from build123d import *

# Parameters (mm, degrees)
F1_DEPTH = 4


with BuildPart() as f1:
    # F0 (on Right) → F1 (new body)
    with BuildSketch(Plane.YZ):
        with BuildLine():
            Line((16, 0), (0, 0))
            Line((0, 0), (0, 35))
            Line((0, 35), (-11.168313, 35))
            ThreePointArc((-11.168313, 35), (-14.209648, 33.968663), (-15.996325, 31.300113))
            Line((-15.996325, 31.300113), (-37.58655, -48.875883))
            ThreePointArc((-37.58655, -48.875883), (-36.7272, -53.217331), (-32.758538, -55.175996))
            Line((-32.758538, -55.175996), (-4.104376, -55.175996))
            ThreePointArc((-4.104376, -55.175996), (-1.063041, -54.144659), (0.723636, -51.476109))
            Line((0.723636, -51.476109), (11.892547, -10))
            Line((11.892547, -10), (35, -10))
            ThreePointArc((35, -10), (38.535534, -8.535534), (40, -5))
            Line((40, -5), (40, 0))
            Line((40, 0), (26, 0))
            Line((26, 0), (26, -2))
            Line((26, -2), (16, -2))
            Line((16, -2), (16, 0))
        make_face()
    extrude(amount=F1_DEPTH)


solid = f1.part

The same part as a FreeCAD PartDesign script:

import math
import FreeCAD as App
import Part
import Sketcher
from FreeCAD import Vector

doc = App.newDocument("Part")
body = doc.addObject("PartDesign::Body", "Body")

# Sketch on YZ plane
sketch1 = doc.addObject("Sketcher::SketchObject", "Sketch")
body.addObject(sketch1)
sketch1.AttachmentSupport = (doc.YZ_Plane, [""])
sketch1.MapMode = "FlatFace"
sketch1.addGeometry(Part.LineSegment(Vector(16, 0, 0), Vector(0, 0, 0)), False)
sketch1.addGeometry(Part.LineSegment(Vector(0, 0, 0), Vector(0, 35, 0)), False)
sketch1.addGeometry(Part.LineSegment(Vector(0, 35, 0), Vector(-11.168313, 35, 0)), False)
sketch1.addGeometry(Part.ArcOfCircle(Part.Circle(Vector(-11.168315, 30.000003, 0), Vector(0, 0, 1), 4.999997), math.radians(89.999979), math.radians(164.928626)), False)
sketch1.addGeometry(Part.LineSegment(Vector(-15.996325, 31.300113, 0), Vector(-37.58655, -48.875883, 0)), False)
sketch1.addGeometry(Part.ArcOfCircle(Part.Circle(Vector(-32.758538, -50.175996, 0), Vector(0, 0, 1), 5), math.radians(164.928593), math.radians(269.999997)), False)
sketch1.addGeometry(Part.LineSegment(Vector(-32.758538, -55.175996, 0), Vector(-4.104376, -55.175996, 0)), False)
sketch1.addGeometry(Part.ArcOfCircle(Part.Circle(Vector(-4.104374, -50.175999, 0), Vector(0, 0, 1), 4.999997), math.radians(-90.000021), math.radians(-15.071374)), False)
sketch1.addGeometry(Part.LineSegment(Vector(0.723636, -51.476109, 0), Vector(11.892547, -10, 0)), False)
sketch1.addGeometry(Part.LineSegment(Vector(11.892547, -10, 0), Vector(35, -10, 0)), False)
sketch1.addGeometry(Part.ArcOfCircle(Part.Circle(Vector(35, -5, 0), Vector(0, 0, 1), 5), math.radians(-90.000004), math.radians(0.000004)), False)
sketch1.addGeometry(Part.LineSegment(Vector(40, -5, 0), Vector(40, 0, 0)), False)
sketch1.addGeometry(Part.LineSegment(Vector(40, 0, 0), Vector(26, 0, 0)), False)
sketch1.addGeometry(Part.LineSegment(Vector(26, 0, 0), Vector(26, -2, 0)), False)
sketch1.addGeometry(Part.LineSegment(Vector(26, -2, 0), Vector(16, -2, 0)), False)
sketch1.addGeometry(Part.LineSegment(Vector(16, -2, 0), Vector(16, 0, 0)), False)
sketch1.addConstraint(Sketcher.Constraint("Coincident", 0, 2, 1, 1))
sketch1.addConstraint(Sketcher.Constraint("Coincident", 1, 2, 2, 1))
sketch1.addConstraint(Sketcher.Constraint("Tangent", 2, 2, 3, 1))
sketch1.addConstraint(Sketcher.Constraint("Tangent", 3, 2, 4, 1))
sketch1.addConstraint(Sketcher.Constraint("Tangent", 4, 2, 5, 1))
sketch1.addConstraint(Sketcher.Constraint("Tangent", 5, 2, 6, 1))
sketch1.addConstraint(Sketcher.Constraint("Tangent", 6, 2, 7, 1))
sketch1.addConstraint(Sketcher.Constraint("Tangent", 7, 2, 8, 1))
sketch1.addConstraint(Sketcher.Constraint("Coincident", 8, 2, 9, 1))
sketch1.addConstraint(Sketcher.Constraint("Tangent", 9, 2, 10, 1))
sketch1.addConstraint(Sketcher.Constraint("Tangent", 10, 2, 11, 1))
sketch1.addConstraint(Sketcher.Constraint("Coincident", 11, 2, 12, 1))
sketch1.addConstraint(Sketcher.Constraint("Coincident", 12, 2, 13, 1))
sketch1.addConstraint(Sketcher.Constraint("Coincident", 13, 2, 14, 1))
sketch1.addConstraint(Sketcher.Constraint("Coincident", 14, 2, 15, 1))
sketch1.addConstraint(Sketcher.Constraint("Coincident", 15, 2, 0, 1))
sketch1.addConstraint(Sketcher.Constraint("Horizontal", 0))
sketch1.addConstraint(Sketcher.Constraint("Vertical", 1))
sketch1.addConstraint(Sketcher.Constraint("Horizontal", 2))
sketch1.addConstraint(Sketcher.Constraint("Horizontal", 6))
sketch1.addConstraint(Sketcher.Constraint("Horizontal", 9))
sketch1.addConstraint(Sketcher.Constraint("Vertical", 11))
sketch1.addConstraint(Sketcher.Constraint("Horizontal", 12))
sketch1.addConstraint(Sketcher.Constraint("Vertical", 13))
sketch1.addConstraint(Sketcher.Constraint("Horizontal", 14))
sketch1.addConstraint(Sketcher.Constraint("Vertical", 15))
sketch1.addConstraint(Sketcher.Constraint("Coincident", 0, 2, -1, 1))
sketch1.addConstraint(Sketcher.Constraint("Equal", 3, 7))
sketch1.addConstraint(Sketcher.Constraint("Equal", 5, 10))
sketch1.addConstraint(Sketcher.Constraint("PointOnObject", 11, 2, -1))
sketch1.addConstraint(Sketcher.Constraint("Parallel", 4, 8))
sketch1.addConstraint(Sketcher.Constraint("Radius", 5, 5.0))
sketch1.addConstraint(Sketcher.Constraint("DistanceX", 0, 2, 0, 1, 16.0))
sketch1.addConstraint(Sketcher.Constraint("DistanceX", 12, 2, 12, 1, 14.0))
sketch1.addConstraint(Sketcher.Constraint("DistanceX", 14, 2, 14, 1, 10.0))
sketch1.addConstraint(Sketcher.Constraint("DistanceY", 1, 1, 1, 2, 35.0))
sketch1.addConstraint(Sketcher.Constraint("DistanceY", 11, 1, 11, 2, 5.0))
sketch1.addConstraint(Sketcher.Constraint("DistanceY", 13, 2, 13, 1, 2.0))
sketch1.addConstraint(Sketcher.Constraint("DistanceY", 7, 3, -1, 1, 50.175999))
sketch1.addConstraint(Sketcher.Constraint("Radius", 3, 4.999997))
sketch1.addConstraint(Sketcher.Constraint("DistanceX", 6, 1, 6, 2, 28.654162))
sketch1.addConstraint(Sketcher.Constraint("Distance", 4, 83.032091))
sketch1.addConstraint(Sketcher.Constraint("DistanceX", 2, 2, 2, 1, 11.168313))
pad1 = doc.addObject("PartDesign::Pad", "Pad")
body.addObject(pad1)
pad1.Profile = sketch1
pad1.Length = 4

doc.recompute()
